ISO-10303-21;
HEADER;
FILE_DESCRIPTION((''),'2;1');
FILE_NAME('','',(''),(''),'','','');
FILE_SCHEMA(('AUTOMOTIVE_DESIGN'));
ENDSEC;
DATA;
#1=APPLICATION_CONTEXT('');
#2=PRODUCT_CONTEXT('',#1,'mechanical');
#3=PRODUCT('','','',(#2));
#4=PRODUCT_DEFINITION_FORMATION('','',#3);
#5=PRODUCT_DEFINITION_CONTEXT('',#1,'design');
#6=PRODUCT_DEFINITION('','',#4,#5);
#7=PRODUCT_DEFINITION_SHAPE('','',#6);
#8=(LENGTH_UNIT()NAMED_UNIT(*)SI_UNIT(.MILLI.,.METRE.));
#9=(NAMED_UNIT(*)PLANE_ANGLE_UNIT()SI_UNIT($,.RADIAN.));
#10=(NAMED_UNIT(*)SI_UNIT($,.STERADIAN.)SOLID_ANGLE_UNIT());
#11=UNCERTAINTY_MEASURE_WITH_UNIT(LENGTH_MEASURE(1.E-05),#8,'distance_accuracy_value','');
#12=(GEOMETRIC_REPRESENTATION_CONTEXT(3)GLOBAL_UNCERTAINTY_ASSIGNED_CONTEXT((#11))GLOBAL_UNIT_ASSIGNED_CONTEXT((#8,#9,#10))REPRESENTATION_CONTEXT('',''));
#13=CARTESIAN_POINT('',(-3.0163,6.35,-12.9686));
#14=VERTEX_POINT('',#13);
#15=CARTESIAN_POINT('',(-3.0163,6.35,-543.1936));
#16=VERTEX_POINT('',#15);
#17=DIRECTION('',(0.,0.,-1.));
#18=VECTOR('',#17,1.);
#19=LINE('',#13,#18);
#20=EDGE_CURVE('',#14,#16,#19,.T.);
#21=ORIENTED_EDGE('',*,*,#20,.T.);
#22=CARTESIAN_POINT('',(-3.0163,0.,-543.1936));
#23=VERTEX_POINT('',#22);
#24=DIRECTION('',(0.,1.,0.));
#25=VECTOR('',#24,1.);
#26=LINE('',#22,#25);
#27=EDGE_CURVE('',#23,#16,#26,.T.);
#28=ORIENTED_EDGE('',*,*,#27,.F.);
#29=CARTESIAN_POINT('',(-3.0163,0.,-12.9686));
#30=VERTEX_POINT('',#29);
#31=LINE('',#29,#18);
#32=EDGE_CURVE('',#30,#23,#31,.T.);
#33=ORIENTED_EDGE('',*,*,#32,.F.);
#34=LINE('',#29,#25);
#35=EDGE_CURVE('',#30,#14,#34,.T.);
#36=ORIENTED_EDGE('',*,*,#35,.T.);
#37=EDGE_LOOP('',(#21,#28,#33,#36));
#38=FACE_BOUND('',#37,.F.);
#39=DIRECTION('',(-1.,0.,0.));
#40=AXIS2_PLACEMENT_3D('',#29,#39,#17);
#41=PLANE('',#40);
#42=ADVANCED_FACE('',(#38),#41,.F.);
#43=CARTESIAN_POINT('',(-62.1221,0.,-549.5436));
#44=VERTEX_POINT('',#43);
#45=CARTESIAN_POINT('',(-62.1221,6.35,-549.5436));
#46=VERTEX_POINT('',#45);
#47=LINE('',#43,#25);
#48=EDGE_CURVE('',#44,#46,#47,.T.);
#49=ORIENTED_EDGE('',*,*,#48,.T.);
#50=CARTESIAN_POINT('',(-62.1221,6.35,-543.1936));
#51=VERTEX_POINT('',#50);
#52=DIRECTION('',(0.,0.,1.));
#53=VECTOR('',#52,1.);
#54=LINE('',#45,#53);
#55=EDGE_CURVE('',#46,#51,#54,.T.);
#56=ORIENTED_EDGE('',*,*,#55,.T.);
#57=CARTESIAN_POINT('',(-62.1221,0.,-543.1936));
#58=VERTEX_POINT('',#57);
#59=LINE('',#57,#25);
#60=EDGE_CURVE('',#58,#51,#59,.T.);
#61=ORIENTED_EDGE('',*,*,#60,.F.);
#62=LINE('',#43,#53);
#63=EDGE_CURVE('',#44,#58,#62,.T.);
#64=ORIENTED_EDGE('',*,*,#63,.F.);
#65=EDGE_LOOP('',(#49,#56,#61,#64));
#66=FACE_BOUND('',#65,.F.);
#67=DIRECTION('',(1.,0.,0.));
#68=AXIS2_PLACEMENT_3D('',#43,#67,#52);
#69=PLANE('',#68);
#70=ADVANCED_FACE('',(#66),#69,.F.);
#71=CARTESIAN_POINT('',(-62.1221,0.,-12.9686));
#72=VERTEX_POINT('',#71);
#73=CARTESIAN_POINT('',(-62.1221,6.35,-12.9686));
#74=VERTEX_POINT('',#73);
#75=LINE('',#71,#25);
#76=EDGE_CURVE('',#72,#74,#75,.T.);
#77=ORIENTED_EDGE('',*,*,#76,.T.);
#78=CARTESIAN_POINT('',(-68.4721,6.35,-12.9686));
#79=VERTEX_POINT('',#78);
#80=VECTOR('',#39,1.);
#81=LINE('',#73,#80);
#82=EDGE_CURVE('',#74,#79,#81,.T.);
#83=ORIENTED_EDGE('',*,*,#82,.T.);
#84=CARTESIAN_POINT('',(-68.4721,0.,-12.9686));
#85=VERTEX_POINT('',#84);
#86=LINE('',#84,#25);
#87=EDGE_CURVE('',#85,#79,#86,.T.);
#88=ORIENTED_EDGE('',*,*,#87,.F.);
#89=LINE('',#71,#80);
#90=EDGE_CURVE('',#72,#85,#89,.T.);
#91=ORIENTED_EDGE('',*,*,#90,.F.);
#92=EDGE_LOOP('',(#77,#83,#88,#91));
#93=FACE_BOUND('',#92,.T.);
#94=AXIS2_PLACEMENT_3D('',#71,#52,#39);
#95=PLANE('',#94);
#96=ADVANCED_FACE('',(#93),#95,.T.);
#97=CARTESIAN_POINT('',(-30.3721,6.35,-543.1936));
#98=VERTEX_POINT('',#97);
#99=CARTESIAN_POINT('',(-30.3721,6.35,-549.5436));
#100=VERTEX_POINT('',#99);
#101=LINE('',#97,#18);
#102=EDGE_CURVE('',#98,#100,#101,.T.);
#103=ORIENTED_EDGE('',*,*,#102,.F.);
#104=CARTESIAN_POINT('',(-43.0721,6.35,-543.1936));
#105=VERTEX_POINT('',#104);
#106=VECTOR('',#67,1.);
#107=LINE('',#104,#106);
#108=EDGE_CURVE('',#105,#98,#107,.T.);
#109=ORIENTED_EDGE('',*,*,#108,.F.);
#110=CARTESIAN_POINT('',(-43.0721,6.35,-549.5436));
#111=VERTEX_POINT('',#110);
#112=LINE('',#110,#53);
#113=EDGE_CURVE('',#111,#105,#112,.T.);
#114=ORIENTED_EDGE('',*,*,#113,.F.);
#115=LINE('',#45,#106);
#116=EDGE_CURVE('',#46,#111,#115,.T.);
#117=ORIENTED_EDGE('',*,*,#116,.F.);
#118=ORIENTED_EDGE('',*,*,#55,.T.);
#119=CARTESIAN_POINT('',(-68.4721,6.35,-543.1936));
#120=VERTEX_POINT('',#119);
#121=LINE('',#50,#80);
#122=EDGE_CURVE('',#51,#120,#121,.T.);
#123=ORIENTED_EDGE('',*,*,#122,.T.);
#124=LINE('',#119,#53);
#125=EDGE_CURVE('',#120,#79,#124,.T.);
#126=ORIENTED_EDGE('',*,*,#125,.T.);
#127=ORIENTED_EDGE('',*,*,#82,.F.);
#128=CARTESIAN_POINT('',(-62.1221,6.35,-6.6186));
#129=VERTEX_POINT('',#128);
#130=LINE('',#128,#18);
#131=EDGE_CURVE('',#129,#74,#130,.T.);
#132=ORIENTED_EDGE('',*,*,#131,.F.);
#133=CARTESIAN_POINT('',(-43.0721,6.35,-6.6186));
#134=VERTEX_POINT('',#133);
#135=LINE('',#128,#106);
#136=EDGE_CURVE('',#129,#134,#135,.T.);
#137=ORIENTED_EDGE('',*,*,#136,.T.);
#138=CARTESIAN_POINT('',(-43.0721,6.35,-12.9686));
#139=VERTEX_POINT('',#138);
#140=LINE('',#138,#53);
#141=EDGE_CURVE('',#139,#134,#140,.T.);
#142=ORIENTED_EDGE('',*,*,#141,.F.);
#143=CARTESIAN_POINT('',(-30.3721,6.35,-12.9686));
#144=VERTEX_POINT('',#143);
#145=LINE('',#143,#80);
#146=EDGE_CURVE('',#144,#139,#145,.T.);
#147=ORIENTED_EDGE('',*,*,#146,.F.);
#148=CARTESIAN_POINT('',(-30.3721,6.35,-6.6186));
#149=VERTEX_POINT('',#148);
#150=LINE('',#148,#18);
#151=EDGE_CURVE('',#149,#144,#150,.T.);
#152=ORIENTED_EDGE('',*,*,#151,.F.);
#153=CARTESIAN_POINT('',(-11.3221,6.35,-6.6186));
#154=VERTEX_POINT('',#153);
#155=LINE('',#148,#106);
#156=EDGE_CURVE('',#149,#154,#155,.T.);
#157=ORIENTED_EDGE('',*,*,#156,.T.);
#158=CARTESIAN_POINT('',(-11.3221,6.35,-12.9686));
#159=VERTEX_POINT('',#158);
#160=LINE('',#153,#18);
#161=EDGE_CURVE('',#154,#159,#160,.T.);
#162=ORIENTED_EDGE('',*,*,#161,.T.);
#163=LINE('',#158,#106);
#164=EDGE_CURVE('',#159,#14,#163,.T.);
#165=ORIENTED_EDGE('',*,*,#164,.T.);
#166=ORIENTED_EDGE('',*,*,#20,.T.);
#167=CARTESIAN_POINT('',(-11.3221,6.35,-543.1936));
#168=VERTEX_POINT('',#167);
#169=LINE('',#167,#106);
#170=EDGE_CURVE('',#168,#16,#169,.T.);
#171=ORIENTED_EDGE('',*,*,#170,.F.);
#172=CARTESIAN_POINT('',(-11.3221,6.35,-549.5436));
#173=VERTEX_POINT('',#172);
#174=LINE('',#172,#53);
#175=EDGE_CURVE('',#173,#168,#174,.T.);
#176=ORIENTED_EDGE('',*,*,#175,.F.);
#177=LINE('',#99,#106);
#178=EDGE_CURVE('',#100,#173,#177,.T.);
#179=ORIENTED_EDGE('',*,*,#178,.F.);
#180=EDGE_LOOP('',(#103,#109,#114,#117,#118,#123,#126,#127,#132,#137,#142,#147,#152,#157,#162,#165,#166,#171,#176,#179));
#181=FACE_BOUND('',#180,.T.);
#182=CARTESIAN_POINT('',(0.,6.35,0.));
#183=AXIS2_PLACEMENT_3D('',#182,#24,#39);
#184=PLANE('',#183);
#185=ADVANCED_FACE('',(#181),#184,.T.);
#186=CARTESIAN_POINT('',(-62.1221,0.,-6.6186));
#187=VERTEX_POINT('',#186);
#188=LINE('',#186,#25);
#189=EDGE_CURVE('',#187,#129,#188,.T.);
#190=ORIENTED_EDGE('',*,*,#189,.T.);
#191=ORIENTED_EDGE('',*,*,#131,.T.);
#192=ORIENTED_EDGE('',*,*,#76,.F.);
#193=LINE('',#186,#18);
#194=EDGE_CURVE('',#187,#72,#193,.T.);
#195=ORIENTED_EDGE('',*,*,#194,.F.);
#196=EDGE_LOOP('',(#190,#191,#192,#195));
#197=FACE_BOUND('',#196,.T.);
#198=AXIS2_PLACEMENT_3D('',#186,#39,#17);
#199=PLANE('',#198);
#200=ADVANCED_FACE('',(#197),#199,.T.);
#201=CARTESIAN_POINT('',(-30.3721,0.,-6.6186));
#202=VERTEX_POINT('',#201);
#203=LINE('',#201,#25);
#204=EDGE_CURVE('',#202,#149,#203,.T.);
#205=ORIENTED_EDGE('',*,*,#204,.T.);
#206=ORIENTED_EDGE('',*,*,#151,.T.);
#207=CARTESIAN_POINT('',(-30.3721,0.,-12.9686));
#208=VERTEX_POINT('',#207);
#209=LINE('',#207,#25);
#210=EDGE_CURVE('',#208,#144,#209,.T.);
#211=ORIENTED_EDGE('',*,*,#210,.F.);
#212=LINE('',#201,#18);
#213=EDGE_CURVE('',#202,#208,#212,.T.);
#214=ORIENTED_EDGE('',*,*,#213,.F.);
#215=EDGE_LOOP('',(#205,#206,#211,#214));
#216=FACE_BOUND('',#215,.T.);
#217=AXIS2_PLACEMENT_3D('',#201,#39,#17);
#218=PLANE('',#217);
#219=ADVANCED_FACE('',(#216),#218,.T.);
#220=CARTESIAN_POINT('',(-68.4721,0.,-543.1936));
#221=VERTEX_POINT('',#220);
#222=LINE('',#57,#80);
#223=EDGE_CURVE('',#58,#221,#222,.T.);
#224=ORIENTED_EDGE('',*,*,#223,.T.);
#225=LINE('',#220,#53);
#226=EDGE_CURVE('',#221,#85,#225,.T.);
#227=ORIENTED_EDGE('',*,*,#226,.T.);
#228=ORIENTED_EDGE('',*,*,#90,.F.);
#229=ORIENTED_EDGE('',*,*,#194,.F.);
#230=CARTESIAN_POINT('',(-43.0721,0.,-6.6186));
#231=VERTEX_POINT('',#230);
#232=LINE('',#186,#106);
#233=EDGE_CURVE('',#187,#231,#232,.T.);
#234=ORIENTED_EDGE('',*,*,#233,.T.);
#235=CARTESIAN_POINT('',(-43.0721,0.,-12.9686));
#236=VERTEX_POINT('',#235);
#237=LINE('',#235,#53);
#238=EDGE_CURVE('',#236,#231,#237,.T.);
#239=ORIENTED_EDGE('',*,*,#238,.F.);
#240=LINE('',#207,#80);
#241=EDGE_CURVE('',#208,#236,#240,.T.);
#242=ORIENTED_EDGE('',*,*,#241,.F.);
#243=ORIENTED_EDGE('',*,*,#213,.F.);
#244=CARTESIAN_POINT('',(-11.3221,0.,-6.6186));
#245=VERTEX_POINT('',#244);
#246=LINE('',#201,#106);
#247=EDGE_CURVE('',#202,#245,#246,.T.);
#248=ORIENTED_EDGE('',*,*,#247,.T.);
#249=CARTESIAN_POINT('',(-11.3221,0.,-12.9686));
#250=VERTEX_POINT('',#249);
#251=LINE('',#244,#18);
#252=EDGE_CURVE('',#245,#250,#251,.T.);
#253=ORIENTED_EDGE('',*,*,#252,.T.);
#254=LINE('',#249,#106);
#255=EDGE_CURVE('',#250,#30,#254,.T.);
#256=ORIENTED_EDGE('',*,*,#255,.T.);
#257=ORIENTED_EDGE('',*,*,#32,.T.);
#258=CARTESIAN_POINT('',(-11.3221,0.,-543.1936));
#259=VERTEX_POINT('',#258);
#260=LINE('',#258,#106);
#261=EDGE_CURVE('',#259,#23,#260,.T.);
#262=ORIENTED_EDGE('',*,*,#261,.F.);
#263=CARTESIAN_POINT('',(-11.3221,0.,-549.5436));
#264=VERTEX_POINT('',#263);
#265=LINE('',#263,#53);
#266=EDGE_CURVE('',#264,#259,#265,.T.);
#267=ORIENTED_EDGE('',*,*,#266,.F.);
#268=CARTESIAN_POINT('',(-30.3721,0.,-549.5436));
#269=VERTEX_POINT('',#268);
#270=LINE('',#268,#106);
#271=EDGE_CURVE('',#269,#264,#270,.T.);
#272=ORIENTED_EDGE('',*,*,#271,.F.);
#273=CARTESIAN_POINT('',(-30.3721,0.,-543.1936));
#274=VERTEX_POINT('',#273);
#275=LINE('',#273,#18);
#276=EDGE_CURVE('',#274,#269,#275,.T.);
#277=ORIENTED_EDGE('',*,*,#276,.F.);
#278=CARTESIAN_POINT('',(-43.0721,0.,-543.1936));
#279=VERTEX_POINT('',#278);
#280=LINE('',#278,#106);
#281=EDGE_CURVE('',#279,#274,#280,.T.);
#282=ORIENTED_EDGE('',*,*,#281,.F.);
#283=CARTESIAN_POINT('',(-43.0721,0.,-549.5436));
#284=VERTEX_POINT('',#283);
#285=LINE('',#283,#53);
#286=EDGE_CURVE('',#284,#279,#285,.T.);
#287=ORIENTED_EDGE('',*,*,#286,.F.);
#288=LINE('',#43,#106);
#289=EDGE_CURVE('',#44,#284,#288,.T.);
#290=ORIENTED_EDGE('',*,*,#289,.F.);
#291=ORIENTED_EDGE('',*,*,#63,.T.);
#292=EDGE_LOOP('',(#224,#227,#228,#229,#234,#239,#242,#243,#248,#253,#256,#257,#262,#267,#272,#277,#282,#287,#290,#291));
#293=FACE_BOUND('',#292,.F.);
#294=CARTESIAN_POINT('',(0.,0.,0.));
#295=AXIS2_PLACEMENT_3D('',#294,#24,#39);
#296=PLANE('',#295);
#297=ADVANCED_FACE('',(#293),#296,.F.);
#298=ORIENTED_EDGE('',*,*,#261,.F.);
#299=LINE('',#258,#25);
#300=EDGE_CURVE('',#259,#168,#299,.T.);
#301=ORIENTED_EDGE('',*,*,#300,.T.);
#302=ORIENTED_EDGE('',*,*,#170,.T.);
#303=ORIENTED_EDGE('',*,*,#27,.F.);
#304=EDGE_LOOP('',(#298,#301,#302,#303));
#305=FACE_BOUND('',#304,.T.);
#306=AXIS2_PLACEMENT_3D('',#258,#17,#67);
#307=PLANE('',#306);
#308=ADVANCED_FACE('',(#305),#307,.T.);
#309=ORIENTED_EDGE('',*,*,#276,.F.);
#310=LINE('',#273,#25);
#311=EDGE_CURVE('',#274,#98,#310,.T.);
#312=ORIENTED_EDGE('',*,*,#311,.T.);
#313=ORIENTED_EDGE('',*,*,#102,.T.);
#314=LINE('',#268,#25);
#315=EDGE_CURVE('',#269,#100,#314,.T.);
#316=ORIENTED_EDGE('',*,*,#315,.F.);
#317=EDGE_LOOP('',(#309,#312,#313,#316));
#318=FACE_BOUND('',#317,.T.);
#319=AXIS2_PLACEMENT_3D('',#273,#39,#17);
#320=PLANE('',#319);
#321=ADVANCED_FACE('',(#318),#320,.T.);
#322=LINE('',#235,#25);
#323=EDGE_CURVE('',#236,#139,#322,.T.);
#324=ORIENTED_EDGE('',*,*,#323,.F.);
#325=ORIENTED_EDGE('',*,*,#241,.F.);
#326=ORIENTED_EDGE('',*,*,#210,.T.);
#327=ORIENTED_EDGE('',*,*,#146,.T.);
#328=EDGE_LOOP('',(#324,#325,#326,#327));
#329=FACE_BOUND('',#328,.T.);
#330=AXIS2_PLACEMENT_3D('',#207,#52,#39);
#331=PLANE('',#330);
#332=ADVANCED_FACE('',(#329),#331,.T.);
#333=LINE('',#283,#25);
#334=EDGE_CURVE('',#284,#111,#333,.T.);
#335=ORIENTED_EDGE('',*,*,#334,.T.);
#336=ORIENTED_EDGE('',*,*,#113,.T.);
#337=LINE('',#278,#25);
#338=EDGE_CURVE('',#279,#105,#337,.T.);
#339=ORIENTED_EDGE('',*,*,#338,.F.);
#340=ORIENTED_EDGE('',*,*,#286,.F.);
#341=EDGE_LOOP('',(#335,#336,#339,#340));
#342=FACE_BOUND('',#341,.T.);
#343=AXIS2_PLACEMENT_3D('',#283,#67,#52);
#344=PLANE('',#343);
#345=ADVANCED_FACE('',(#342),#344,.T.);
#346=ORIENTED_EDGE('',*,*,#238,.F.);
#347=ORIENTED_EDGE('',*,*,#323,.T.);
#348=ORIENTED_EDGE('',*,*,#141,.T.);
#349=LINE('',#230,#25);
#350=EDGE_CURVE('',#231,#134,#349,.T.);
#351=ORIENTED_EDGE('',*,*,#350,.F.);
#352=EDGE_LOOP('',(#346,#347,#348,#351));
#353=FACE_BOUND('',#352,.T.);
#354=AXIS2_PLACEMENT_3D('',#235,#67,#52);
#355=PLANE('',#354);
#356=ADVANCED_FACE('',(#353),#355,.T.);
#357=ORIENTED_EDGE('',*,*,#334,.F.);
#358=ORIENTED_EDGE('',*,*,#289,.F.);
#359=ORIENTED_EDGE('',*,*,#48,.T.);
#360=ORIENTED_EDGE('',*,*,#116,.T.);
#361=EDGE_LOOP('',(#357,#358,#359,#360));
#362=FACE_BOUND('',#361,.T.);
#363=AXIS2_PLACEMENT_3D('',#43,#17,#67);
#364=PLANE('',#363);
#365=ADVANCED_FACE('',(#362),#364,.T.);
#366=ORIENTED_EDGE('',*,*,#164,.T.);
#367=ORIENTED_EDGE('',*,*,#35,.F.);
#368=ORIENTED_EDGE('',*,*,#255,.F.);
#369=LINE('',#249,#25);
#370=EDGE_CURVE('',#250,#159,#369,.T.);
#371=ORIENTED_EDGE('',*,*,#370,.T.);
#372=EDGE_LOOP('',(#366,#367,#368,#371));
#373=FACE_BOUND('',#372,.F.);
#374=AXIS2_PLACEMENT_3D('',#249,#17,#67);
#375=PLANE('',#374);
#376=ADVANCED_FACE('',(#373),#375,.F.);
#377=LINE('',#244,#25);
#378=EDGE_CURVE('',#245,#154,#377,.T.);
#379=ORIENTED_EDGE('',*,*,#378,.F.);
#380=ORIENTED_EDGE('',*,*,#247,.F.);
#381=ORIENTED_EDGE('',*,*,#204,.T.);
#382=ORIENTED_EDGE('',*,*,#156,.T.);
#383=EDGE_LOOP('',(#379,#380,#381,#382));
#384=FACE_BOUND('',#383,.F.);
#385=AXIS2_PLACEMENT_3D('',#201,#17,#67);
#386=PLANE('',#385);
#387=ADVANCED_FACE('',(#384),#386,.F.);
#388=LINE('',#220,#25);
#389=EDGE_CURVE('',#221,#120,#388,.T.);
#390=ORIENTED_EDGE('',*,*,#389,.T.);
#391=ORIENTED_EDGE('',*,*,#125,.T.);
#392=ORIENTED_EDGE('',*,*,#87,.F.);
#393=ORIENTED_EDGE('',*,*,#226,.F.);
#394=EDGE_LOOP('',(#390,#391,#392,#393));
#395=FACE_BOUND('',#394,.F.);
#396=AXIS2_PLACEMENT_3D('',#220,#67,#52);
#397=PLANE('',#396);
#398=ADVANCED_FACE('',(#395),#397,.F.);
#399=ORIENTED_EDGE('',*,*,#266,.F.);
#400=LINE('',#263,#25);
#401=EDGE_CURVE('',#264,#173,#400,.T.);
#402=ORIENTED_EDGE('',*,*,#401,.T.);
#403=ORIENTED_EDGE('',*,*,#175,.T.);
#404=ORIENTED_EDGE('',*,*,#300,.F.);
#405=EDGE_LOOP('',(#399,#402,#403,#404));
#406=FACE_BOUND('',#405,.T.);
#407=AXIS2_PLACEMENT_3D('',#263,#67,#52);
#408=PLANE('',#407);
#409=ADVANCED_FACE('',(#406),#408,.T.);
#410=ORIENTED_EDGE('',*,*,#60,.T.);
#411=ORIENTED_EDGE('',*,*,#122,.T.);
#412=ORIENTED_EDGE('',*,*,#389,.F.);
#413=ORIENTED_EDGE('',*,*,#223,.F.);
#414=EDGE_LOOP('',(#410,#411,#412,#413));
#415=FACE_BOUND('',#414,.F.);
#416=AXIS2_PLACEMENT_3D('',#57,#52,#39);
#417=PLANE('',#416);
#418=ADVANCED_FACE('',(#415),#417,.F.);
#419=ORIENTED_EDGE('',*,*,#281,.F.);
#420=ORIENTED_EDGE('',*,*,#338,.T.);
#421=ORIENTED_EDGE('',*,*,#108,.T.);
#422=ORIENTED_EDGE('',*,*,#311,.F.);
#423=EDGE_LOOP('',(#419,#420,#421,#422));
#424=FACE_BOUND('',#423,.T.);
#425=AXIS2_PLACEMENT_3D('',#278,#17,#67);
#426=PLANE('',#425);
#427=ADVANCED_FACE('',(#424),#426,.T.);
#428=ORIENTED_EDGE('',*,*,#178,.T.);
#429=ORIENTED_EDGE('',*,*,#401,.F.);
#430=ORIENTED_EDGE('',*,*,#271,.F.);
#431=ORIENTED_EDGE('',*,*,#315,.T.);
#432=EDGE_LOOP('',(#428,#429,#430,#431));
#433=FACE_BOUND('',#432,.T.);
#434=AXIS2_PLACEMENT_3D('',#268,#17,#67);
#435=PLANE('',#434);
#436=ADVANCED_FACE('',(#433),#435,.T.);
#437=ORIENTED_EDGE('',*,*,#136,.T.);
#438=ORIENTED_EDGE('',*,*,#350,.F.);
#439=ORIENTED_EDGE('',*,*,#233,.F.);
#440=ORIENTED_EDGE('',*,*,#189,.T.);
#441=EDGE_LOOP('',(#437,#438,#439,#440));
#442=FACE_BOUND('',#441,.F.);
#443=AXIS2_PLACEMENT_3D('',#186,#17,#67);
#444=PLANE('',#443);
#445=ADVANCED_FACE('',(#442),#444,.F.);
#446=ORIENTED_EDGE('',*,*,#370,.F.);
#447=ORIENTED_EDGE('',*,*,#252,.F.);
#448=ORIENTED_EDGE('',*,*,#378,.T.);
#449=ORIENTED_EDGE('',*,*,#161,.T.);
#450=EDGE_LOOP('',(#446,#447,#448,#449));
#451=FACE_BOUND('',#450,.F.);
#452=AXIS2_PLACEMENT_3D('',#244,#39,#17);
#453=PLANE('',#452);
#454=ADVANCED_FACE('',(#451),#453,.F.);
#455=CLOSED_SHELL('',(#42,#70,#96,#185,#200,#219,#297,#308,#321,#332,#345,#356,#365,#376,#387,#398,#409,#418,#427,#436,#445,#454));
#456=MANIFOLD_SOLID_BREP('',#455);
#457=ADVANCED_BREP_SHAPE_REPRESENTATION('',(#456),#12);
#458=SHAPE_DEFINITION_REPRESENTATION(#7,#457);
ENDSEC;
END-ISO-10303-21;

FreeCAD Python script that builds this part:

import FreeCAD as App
import Part
import Sketcher
from FreeCAD import Vector
Q = App.Units.Quantity

doc = App.newDocument("Part")
params = doc.addObject("Spreadsheet::Sheet", "Params")
for row, (alias, value) in enumerate([
    ("sketch1_width", "0.5 in"),
    ("sketch1_width2", "0.75 in"),
    ("sketch1_width3", "0.25 in"),
    ("sketch1_width4", "0.327 in"),
    ("sketch1_height", "20.875 in"),
    ("pad1_length", "0.25 in"),
], start=1):
    params.set(f"A{row}", alias)
    params.set(f"B{row}", "=" + value)
    params.setAlias(f"B{row}", alias)

body = doc.addObject("PartDesign::Body", "Body")

# Sketch on XZ plane
sketch1 = body.newObject("Sketcher::SketchObject", "Sketch")
sketch1.AttachmentSupport = (doc.getObject("XZ_Plane"), [""])
sketch1.MapMode = "FlatFace"
sketch1.addGeometry([
    Part.LineSegment(Vector(-11, -13, 0), Vector(-3, -13, 0)),  # 0
    Part.LineSegment(Vector(-3, -13, 0), Vector(-3, -543, 0)),  # 1
    Part.LineSegment(Vector(-3, -543, 0), Vector(-11, -543, 0)),  # 2
    Part.LineSegment(Vector(-11, -543, 0), Vector(-11, -550, 0)),  # 3
    Part.LineSegment(Vector(-11, -550, 0), Vector(-30, -550, 0)),  # 4
    Part.LineSegment(Vector(-30, -550, 0), Vector(-30, -543, 0)),  # 5
    Part.LineSegment(Vector(-30, -543, 0), Vector(-43, -543, 0)),  # 6
    Part.LineSegment(Vector(-43, -543, 0), Vector(-43, -550, 0)),  # 7
    Part.LineSegment(Vector(-43, -550, 0), Vector(-62, -550, 0)),  # 8
    Part.LineSegment(Vector(-62, -550, 0), Vector(-62, -543, 0)),  # 9
    Part.LineSegment(Vector(-62, -543, 0), Vector(-68, -543, 0)),  # 10
    Part.LineSegment(Vector(-68, -543, 0), Vector(-68, -13, 0)),  # 11
    Part.LineSegment(Vector(-68, -13, 0), Vector(-62, -13, 0)),  # 12
    Part.LineSegment(Vector(-62, -13, 0), Vector(-62, -7, 0)),  # 13
    Part.LineSegment(Vector(-62, -7, 0), Vector(-43, -7, 0)),  # 14
    Part.LineSegment(Vector(-43, -7, 0), Vector(-43, -13, 0)),  # 15
    Part.LineSegment(Vector(-43, -13, 0), Vector(-30, -13, 0)),  # 16
    Part.LineSegment(Vector(-30, -13, 0), Vector(-30, -7, 0)),  # 17
    Part.LineSegment(Vector(-30, -7, 0), Vector(-11, -7, 0)),  # 18
    Part.LineSegment(Vector(-11, -7, 0), Vector(-11, -13, 0)),  # 19
], False)
sketch1.addConstraint([
    Sketcher.Constraint("Coincident", 0, 2, 1, 1),
    Sketcher.Constraint("Coincident", 1, 2, 2, 1),
    Sketcher.Constraint("Coincident", 2, 2, 3, 1),
    Sketcher.Constraint("Coincident", 3, 2, 4, 1),
    Sketcher.Constraint("Coincident", 4, 2, 5, 1),
    Sketcher.Constraint("Coincident", 5, 2, 6, 1),
    Sketcher.Constraint("Coincident", 6, 2, 7, 1),
    Sketcher.Constraint("Coincident", 7, 2, 8, 1),
    Sketcher.Constraint("Coincident", 8, 2, 9, 1),
    Sketcher.Constraint("Coincident", 9, 2, 10, 1),
    Sketcher.Constraint("Coincident", 10, 2, 11, 1),
    Sketcher.Constraint("Coincident", 11, 2, 12, 1),
    Sketcher.Constraint("Coincident", 12, 2, 13, 1),
    Sketcher.Constraint("Coincident", 13, 2, 14, 1),
    Sketcher.Constraint("Coincident", 14, 2, 15, 1),
    Sketcher.Constraint("Coincident", 15, 2, 16, 1),
    Sketcher.Constraint("Coincident", 16, 2, 17, 1),
    Sketcher.Constraint("Coincident", 17, 2, 18, 1),
    Sketcher.Constraint("Coincident", 18, 2, 19, 1),
    Sketcher.Constraint("Coincident", 19, 2, 0, 1),
    Sketcher.Constraint("Horizontal", 0),
    Sketcher.Constraint("Vertical", 1),
    Sketcher.Constraint("Horizontal", 2),
    Sketcher.Constraint("Vertical", 3),
    Sketcher.Constraint("Horizontal", 4),
    Sketcher.Constraint("Vertical", 5),
    Sketcher.Constraint("Horizontal", 6),
    Sketcher.Constraint("Vertical", 7),
    Sketcher.Constraint("Horizontal", 8),
    Sketcher.Constraint("Vertical", 9),
    Sketcher.Constraint("Horizontal", 10),
    Sketcher.Constraint("Vertical", 11),
    Sketcher.Constraint("Horizontal", 12),
    Sketcher.Constraint("Vertical", 13),
    Sketcher.Constraint("Horizontal", 14),
    Sketcher.Constraint("Vertical", 15),
    Sketcher.Constraint("Horizontal", 16),
    Sketcher.Constraint("Vertical", 17),
    Sketcher.Constraint("Horizontal", 18),
    Sketcher.Constraint("Vertical", 19),
    Sketcher.Constraint("Horizontal", 2, 2, 5, 2),
    Sketcher.Constraint("Horizontal", 4, 2, 7, 2),
    Sketcher.Constraint("Horizontal", 6, 2, 9, 2),
    Sketcher.Constraint("Horizontal", 0, 2, 11, 2),
    Sketcher.Constraint("Horizontal", 12, 2, 15, 2),
    Sketcher.Constraint("Horizontal", 14, 2, 17, 2),
    Sketcher.Constraint("Vertical", 9, 2, 12, 2),
    Sketcher.Constraint("Vertical", 7, 2, 14, 2),
    Sketcher.Constraint("Vertical", 5, 2, 16, 2),
    Sketcher.Constraint("Vertical", 3, 2, 18, 2),
    Sketcher.Constraint("Equal", 4, 8),
    Sketcher.Constraint("Equal", 12, 3),
    Sketcher.Constraint("Equal", 9, 13),
    Sketcher.Constraint("DistanceX", 6, 2, 6, 1, Q("0.5 in")),
    Sketcher.Constraint("DistanceX", 4, 2, 4, 1, Q("0.75 in")),
    Sketcher.Constraint("DistanceX", 10, 2, 10, 1, Q("0.25 in")),
    Sketcher.Constraint("DistanceX", 0, 1, 0, 2, Q("0.327 in")),
    Sketcher.Constraint("DistanceY", 1, 2, 1, 1, Q("20.875 in")),
    Sketcher.Constraint("DistanceX", 0, 2, -1, 1, Q("3.0163 mm")),
    Sketcher.Constraint("DistanceY", 0, 2, -1, 1, Q("12.9686 mm")),
])
sketch1.setExpression("Constraints[53]", "Params.sketch1_width")
sketch1.setExpression("Constraints[54]", "Params.sketch1_width2")
sketch1.setExpression("Constraints[55]", "Params.sketch1_width3")
sketch1.setExpression("Constraints[56]", "Params.sketch1_width4")
sketch1.setExpression("Constraints[57]", "Params.sketch1_height")
pad1 = body.newObject("PartDesign::Pad", "Pad")
pad1.Profile = sketch1
pad1.setExpression("Length", "Params.pad1_length")
pad1.Reversed = True

doc.recompute()
